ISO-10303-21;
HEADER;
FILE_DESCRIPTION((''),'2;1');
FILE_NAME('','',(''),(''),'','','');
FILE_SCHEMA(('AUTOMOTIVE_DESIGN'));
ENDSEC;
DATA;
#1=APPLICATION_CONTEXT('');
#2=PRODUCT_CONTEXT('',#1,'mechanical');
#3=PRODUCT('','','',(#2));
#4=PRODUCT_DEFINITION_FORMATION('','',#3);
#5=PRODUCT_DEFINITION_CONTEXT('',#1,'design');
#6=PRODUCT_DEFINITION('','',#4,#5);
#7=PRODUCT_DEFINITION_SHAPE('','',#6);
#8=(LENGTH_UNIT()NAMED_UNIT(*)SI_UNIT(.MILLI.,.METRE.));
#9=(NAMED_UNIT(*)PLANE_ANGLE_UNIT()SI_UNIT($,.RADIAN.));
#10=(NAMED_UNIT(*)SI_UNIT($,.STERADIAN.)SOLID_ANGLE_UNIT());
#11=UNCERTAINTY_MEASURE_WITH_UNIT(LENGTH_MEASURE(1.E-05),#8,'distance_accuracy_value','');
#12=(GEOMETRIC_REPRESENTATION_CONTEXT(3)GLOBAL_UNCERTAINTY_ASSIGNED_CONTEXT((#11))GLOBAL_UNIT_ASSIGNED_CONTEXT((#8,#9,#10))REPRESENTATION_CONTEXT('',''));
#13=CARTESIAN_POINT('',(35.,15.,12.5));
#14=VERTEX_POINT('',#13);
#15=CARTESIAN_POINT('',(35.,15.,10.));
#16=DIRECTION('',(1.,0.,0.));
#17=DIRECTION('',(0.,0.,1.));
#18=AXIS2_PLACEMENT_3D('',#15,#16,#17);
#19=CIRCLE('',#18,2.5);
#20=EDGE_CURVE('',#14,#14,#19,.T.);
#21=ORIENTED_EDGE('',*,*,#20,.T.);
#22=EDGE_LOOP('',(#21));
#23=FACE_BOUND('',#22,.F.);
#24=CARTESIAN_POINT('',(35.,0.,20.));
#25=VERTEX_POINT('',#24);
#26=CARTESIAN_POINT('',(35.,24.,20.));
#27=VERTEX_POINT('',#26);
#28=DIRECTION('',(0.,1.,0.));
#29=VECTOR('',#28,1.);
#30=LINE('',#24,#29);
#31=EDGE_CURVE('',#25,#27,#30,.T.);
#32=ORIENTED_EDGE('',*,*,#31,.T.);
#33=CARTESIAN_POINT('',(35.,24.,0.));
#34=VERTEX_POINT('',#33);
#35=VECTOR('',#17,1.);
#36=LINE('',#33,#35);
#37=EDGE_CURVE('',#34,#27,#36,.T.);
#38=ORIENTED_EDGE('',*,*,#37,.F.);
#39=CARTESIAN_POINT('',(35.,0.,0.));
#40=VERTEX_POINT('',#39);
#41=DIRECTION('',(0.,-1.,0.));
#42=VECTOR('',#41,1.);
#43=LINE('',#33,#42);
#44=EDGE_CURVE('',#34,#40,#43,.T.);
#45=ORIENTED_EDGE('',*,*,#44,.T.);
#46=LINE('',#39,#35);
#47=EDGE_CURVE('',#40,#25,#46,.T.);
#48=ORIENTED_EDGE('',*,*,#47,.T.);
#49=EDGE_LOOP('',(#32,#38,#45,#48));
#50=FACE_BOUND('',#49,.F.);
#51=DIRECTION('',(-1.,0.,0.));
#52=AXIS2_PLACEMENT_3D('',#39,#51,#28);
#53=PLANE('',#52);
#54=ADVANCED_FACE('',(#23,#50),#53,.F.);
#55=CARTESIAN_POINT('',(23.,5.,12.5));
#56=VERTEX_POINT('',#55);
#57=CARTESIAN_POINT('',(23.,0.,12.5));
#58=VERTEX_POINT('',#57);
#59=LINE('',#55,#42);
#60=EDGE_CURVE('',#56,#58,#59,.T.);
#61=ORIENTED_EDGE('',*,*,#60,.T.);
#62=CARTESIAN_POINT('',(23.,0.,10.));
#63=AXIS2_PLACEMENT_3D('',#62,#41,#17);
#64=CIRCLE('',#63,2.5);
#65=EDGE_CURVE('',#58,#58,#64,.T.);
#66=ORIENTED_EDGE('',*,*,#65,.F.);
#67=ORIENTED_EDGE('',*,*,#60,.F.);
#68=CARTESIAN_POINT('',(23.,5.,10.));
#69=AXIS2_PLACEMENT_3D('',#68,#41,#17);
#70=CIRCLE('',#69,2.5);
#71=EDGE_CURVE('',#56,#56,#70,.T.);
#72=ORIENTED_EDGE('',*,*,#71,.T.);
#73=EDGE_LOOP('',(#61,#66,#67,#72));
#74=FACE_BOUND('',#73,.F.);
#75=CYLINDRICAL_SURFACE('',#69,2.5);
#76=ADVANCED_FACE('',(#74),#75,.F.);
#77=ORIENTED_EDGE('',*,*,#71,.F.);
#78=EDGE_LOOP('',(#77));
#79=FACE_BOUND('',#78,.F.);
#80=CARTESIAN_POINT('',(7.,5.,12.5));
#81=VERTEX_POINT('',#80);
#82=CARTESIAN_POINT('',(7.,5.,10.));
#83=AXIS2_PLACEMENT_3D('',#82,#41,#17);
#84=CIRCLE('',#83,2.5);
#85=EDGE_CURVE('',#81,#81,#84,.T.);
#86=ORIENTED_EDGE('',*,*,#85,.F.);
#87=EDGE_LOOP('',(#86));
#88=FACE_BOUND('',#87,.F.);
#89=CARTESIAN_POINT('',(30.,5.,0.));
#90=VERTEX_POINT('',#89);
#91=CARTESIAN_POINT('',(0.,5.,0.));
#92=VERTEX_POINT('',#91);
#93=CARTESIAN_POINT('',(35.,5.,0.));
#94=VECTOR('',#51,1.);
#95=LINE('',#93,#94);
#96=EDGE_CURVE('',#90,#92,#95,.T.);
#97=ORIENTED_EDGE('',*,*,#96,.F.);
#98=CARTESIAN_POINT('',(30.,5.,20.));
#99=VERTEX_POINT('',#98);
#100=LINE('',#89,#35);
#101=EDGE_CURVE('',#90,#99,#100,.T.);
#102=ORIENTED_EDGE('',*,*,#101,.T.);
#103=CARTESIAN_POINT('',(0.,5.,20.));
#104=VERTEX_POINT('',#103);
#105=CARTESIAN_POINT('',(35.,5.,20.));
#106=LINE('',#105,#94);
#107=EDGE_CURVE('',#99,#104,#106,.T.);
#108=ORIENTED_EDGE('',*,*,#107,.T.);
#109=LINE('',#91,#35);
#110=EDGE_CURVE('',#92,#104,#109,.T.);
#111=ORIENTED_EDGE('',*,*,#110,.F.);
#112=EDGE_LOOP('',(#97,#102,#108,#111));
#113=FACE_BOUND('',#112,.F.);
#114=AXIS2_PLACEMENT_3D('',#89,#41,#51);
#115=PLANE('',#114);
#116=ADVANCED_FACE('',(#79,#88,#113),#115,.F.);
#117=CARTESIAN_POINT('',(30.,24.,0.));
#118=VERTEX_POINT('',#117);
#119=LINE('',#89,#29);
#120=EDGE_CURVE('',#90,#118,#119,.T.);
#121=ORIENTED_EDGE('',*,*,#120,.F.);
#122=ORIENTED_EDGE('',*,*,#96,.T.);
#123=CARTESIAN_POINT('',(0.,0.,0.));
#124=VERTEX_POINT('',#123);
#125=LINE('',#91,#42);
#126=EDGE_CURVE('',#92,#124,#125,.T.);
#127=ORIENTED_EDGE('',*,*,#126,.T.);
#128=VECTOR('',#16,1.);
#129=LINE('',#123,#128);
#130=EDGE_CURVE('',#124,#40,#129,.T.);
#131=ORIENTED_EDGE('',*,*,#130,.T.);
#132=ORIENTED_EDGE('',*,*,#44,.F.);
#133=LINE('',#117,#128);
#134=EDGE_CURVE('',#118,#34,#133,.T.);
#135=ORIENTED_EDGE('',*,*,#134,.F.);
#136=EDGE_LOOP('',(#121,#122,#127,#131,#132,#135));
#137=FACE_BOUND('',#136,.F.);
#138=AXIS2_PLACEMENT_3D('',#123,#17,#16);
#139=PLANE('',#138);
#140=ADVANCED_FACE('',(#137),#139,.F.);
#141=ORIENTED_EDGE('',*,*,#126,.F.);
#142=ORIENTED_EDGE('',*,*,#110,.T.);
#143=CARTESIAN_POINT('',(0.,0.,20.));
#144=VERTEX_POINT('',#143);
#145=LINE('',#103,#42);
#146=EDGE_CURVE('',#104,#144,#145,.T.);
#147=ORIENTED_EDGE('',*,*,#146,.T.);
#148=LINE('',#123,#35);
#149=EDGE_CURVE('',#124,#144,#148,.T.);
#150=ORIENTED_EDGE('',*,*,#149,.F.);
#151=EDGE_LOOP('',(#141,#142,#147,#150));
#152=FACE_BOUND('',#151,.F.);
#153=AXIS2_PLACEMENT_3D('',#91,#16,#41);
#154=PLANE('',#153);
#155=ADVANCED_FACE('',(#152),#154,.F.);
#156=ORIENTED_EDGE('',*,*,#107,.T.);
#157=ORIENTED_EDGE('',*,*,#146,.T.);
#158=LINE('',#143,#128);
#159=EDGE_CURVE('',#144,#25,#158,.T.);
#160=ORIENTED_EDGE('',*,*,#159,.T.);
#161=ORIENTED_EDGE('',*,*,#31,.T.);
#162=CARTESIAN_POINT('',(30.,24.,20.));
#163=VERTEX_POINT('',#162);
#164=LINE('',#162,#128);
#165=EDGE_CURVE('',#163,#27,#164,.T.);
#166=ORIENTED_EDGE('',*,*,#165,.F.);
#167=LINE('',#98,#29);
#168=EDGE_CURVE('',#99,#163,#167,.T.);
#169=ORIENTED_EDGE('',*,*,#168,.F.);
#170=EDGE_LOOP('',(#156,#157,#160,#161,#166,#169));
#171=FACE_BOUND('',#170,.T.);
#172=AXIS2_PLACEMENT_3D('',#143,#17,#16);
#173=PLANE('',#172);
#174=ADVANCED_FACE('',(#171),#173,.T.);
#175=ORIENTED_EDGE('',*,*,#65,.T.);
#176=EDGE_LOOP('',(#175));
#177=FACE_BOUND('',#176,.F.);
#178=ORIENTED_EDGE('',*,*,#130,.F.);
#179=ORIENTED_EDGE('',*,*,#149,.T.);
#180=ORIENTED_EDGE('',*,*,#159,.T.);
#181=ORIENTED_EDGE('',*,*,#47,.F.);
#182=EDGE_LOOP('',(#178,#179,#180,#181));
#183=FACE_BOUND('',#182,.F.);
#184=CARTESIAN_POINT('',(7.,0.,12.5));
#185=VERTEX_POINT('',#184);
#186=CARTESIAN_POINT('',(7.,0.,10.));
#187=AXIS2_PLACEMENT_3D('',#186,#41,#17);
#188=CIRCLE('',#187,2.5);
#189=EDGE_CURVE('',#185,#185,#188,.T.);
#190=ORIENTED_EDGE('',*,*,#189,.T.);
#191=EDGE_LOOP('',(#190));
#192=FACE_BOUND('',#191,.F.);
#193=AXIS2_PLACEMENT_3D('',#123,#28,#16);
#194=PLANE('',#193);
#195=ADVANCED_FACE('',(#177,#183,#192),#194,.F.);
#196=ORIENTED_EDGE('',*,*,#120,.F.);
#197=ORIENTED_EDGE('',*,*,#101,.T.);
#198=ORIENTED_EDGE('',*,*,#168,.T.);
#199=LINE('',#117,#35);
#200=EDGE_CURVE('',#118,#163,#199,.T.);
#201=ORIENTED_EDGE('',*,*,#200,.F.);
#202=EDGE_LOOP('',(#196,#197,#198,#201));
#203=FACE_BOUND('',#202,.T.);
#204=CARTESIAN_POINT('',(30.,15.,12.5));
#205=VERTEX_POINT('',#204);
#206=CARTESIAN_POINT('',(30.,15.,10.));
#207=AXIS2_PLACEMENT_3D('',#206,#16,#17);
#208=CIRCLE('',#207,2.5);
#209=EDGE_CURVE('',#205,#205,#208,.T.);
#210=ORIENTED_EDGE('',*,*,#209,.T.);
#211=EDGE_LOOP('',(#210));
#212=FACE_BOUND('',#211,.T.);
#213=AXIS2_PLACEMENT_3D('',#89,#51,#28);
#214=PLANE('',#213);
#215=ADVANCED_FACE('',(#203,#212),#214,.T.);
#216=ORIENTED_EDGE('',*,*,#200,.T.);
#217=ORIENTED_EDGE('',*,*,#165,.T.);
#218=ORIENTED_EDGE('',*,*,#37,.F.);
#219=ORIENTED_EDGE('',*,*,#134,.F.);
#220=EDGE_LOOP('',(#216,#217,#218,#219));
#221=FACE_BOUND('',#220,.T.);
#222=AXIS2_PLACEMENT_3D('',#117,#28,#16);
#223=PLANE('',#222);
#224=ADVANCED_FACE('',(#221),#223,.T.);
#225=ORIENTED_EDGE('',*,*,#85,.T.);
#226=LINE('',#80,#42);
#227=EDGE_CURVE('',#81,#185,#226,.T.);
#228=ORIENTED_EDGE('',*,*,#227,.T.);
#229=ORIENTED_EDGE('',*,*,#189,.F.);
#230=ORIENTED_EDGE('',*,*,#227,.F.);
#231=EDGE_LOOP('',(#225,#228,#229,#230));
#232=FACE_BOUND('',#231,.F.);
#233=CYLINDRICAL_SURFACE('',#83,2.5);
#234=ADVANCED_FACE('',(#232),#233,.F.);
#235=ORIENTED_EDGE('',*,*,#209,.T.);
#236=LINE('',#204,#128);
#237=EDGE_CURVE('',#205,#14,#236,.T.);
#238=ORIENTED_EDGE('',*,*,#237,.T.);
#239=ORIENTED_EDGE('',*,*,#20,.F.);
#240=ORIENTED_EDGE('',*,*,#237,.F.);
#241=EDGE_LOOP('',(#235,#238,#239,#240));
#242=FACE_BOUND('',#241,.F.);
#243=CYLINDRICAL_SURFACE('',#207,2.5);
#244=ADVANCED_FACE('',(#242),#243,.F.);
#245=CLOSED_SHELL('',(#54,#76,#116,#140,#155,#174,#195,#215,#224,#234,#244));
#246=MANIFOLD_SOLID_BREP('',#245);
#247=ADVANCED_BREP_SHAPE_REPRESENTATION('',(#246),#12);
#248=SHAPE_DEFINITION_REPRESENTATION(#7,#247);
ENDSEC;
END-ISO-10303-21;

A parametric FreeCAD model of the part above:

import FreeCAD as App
import Part
import Sketcher

V = App.Vector


def add_polygon(sketch, points):
    """Adds a closed chain of lines whose ends are joined by coincident constraints."""
    first, n = sketch.GeometryCount, len(points)
    for a, b in zip(points, points[1:] + points[:1]):
        sketch.addGeometry(Part.LineSegment(App.Vector(*a, 0), App.Vector(*b, 0)), False)
    for i in range(n):
        sketch.addConstraint(Sketcher.Constraint("Coincident", first + i, 2, first + (i + 1) % n, 1))

doc = App.newDocument("Part")
body = doc.addObject("PartDesign::Body", "Body")

sketch1 = doc.addObject("Sketcher::SketchObject", "Sketch")
body.addObject(sketch1)
sketch1.AttachmentSupport = (doc.XY_Plane, [""])
sketch1.MapMode = "FlatFace"
add_polygon(sketch1, [(0, 5), (0, 0), (35, 0), (35, 24), (30, 24), (30, 5)])
sketch1.addConstraint([
    Sketcher.Constraint("Vertical", 0),
    Sketcher.Constraint("Horizontal", 1),
    Sketcher.Constraint("Vertical", 2),
    Sketcher.Constraint("Horizontal", 3),
    Sketcher.Constraint("Vertical", 4),
    Sketcher.Constraint("Horizontal", 5),
    Sketcher.Constraint("Coincident", 0, 2, -1, 1),
    Sketcher.Constraint("Equal", 3, 0),
    Sketcher.Constraint("DistanceX", 1, 1, 1, 2, 35.0),
    Sketcher.Constraint("DistanceX", 3, 2, 3, 1, 5.0),
    Sketcher.Constraint("DistanceY", 4, 2, 4, 1, 19.0),
])
pad1 = doc.addObject("PartDesign::Pad", "Pad")
body.addObject(pad1)
pad1.Profile = sketch1
pad1.Length = 20

sketch2 = doc.addObject("Sketcher::SketchObject", "Sketch001")
body.addObject(sketch2)
sketch2.AttachmentSupport = (doc.XZ_Plane, [""])
sketch2.MapMode = "FlatFace"
sketch2.AttachmentOffset = App.Placement(V(0, 0, -5), App.Rotation())
sketch2.addGeometry([
    Part.Circle(V(7, 10, 0), V(0, 0, 1), 2.5),
    Part.Circle(V(23, 10, 0), V(0, 0, 1), 2.5),
], False)
sketch2.addConstraint([
    Sketcher.Constraint("Equal", 0, 1),
    Sketcher.Constraint("Horizontal", 0, 3, 1, 3),
    Sketcher.Constraint("Diameter", 0, 5.0),
    Sketcher.Constraint("DistanceX", -1, 1, 0, 3, 7.0),
    Sketcher.Constraint("DistanceY", -1, 1, 0, 3, 10.0),
    Sketcher.Constraint("DistanceX", -1, 1, 1, 3, 23.0),
])
doc.recompute()
hole = doc.addObject("PartDesign::Hole", "Hole")
body.addObject(hole)
hole.Profile = sketch2
hole.ThreadType = "None"
hole.Diameter = 5
hole.DepthType = "Dimension"
hole.Depth = 8
hole.DrillPoint = "Angled"
hole.DrillPointAngle = 118
hole.Reversed = True

sketch3 = doc.addObject("Sketcher::SketchObject", "Sketch002")
body.addObject(sketch3)
sketch3.AttachmentSupport = (doc.YZ_Plane, [""])
sketch3.MapMode = "FlatFace"
sketch3.AttachmentOffset = App.Placement(V(0, 0, 30), App.Rotation())
sketch3.addGeometry(Part.Circle(V(15, 10, 0), V(0, 0, 1), 2.5), False)
sketch3.addConstraint([
    Sketcher.Constraint("Diameter", 0, 5.0),
    Sketcher.Constraint("DistanceX", -1, 1, 0, 3, 15.0),
    Sketcher.Constraint("DistanceY", -1, 1, 0, 3, 10.0),
])
doc.recompute()
hole2 = doc.addObject("PartDesign::Hole", "Hole001")
body.addObject(hole2)
hole2.Profile = sketch3
hole2.ThreadType = "None"
hole2.Diameter = 5
hole2.DepthType = "Dimension"
hole2.Depth = 8
hole2.DrillPoint = "Angled"
hole2.DrillPointAngle = 118
hole2.Reversed = True

doc.recompute()
